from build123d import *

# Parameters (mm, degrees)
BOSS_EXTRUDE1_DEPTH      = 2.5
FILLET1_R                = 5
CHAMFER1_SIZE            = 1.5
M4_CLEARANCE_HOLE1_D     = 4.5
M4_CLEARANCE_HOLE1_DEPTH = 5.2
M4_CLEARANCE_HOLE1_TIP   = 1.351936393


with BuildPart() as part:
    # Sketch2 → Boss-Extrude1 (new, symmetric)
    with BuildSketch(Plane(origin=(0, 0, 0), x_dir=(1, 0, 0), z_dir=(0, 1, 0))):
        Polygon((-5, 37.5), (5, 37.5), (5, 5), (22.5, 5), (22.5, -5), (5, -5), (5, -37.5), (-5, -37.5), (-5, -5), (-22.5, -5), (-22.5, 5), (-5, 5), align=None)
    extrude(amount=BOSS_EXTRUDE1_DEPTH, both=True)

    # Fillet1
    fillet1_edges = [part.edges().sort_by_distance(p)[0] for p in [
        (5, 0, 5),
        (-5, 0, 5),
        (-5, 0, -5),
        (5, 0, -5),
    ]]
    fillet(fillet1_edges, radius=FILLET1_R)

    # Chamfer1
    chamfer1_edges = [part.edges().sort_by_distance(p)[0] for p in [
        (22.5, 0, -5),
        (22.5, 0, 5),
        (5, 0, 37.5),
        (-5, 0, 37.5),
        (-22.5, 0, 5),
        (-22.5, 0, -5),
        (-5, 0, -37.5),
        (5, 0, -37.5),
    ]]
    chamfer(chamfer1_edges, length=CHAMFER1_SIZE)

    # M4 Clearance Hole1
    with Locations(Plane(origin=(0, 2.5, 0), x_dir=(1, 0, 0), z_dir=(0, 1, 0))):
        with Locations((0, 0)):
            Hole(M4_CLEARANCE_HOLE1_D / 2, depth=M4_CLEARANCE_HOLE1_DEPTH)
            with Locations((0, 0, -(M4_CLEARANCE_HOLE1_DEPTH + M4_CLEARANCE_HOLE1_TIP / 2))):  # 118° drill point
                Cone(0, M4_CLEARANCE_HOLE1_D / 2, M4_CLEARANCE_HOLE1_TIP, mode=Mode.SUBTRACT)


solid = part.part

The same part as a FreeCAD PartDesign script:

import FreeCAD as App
import Part
import Sketcher

V = App.Vector
Q = App.Units.Quantity


def edges_at(feature, points):
    """Names of the edges that pass closest to the given points."""
    edges = feature.Shape.Edges
    near = lambda p: min(range(len(edges)), key=lambda i: edges[i].distToShape(Part.Vertex(*p))[0])
    return sorted({f"Edge{near(p) + 1}" for p in points})


def add_polygon(sketch, points):
    """Adds a closed chain of lines whose ends are joined by coincident constraints."""
    first, n = sketch.GeometryCount, len(points)
    for a, b in zip(points, points[1:] + points[:1]):
        sketch.addGeometry(Part.LineSegment(App.Vector(*a, 0), App.Vector(*b, 0)), False)
    for i in range(n):
        sketch.addConstraint(Sketcher.Constraint("Coincident", first + i, 2, first + (i + 1) % n, 1))

doc = App.newDocument("Part")
body = doc.addObject("PartDesign::Body", "Body")

sketch1 = body.newObject("Sketcher::SketchObject", "Sketch")
sketch1.AttachmentSupport = (doc.getObject("XZ_Plane"), [""])
sketch1.MapMode = "FlatFace"
add_polygon(sketch1, [(5, -38), (-5, -38), (-5, -5), (-22, -5), (-22, 5), (-5, 5), (-5, 38), (5, 38), (5, 5), (22, 5), (22, -5), (5, -5)])
sketch1.addConstraint(Sketcher.Constraint("Horizontal", 0))
sketch1.addConstraint(Sketcher.Constraint("Vertical", 1))
sketch1.addConstraint(Sketcher.Constraint("Horizontal", 2))
sketch1.addConstraint(Sketcher.Constraint("Vertical", 3))
sketch1.addConstraint(Sketcher.Constraint("Horizontal", 4))
sketch1.addConstraint(Sketcher.Constraint("Vertical", 5))
sketch1.addConstraint(Sketcher.Constraint("Horizontal", 6))
sketch1.addConstraint(Sketcher.Constraint("Vertical", 7))
sketch1.addConstraint(Sketcher.Constraint("Horizontal", 8))
sketch1.addConstraint(Sketcher.Constraint("Vertical", 9))
sketch1.addConstraint(Sketcher.Constraint("Horizontal", 10))
sketch1.addConstraint(Sketcher.Constraint("Vertical", 11))
sketch1.addConstraint(Sketcher.Constraint("Symmetric", 0, 2, 6, 2, -1, 1))
sketch1.addConstraint(Sketcher.Constraint("Symmetric", 2, 2, 8, 2, -1, 1))
sketch1.addConstraint(Sketcher.Constraint("Symmetric", 4, 2, 10, 2, -1, 1))
sketch1.addConstraint(Sketcher.Constraint("Symmetric", 4, 2, 7, 2, -2))
sketch1.addConstraint(Sketcher.Constraint("Equal", 6, 3))
sketch1.addConstraint(Sketcher.Constraint("DistanceX", 0, 2, 0, 1, Q("10 mm")))
sketch1.addConstraint(Sketcher.Constraint("DistanceX", 2, 2, 2, 1, Q("17.5 mm")))
sketch1.addConstraint(Sketcher.Constraint("DistanceY", 1, 1, 1, 2, Q("32.5 mm")))
pad1 = body.newObject("PartDesign::Pad", "Pad")
pad1.Profile = sketch1
pad1.Length = 5
pad1.Midplane = True
doc.recompute()

fillet = body.newObject("PartDesign::Fillet", "Fillet")
fillet.Base = (pad1, edges_at(pad1, [
    (5, 0, 5),
    (-5, 0, 5),
    (-5, 0, -5),
    (5, 0, -5),
]))
fillet.Radius = 5
doc.recompute()

chamfer = body.newObject("PartDesign::Chamfer", "Chamfer")
chamfer.Base = (fillet, edges_at(fillet, [
    (22.5, 0, -5),
    (22.5, 0, 5),
    (5, 0, 37.5),
    (-5, 0, 37.5),
    (-22.5, 0, 5),
    (-22.5, 0, -5),
    (-5, 0, -37.5),
    (5, 0, -37.5),
]))
chamfer.Size = 1.5

sketch2 = body.newObject("Sketcher::SketchObject", "Sketch001")
sketch2.AttachmentSupport = (doc.getObject("XZ_Plane"), [""])
sketch2.MapMode = "FlatFace"
sketch2.AttachmentOffset = App.Placement(V(0, 0, -2.5), App.Rotation())
sketch2.addGeometry(Part.Circle(V(0, 0, 0), V(0, 0, 1), 2.2), False)
sketch2.addConstraint(Sketcher.Constraint("Coincident", 0, 3, -1, 1))
sketch2.addConstraint(Sketcher.Constraint("Diameter", 0, Q("4.5 mm")))
doc.recompute()
hole = body.newObject("PartDesign::Hole", "Hole")
hole.Profile = sketch2
hole.ThreadType = "None"
hole.Diameter = 4.5
hole.DepthType = "Dimension"
hole.Depth = 5.2
hole.DrillPoint = "Angled"
hole.DrillPointAngle = 118
hole.Reversed = True

doc.recompute()
